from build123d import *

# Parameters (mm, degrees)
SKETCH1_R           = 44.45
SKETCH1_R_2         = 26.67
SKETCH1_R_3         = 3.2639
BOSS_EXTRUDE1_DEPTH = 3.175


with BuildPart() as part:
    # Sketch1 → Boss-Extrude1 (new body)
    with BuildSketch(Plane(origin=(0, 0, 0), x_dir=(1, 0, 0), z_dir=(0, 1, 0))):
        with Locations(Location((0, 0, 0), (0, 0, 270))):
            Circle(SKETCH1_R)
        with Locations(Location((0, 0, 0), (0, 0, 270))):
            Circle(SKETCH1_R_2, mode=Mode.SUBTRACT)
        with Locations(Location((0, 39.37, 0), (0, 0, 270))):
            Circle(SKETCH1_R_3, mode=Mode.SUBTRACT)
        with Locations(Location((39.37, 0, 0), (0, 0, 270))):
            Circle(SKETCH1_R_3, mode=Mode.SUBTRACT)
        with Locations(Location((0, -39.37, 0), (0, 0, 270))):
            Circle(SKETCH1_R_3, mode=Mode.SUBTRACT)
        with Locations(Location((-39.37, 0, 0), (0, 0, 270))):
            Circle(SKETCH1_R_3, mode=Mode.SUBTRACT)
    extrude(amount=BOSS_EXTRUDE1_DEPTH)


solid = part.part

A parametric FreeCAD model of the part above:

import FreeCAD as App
import Part
import Sketcher

V = App.Vector
Q = App.Units.Quantity

doc = App.newDocument("Part")
body = doc.addObject("PartDesign::Body", "Body")

sketch1 = doc.addObject("Sketcher::SketchObject", "Sketch")
body.addObject(sketch1)
sketch1.AttachmentSupport = (doc.XZ_Plane, [""])
sketch1.MapMode = "FlatFace"
sketch1.addGeometry([
    Part.Circle(V(0, 0, 0), V(0, 0, 1), 44.5),
    Part.Circle(V(0, -39.4, 0), V(0, 0, 1), 3.3),
    Part.Circle(V(-39.4, 0, 0), V(0, 0, 1), 3.3),
    Part.Circle(V(39.4, 0, 0), V(0, 0, 1), 3.3),
    Part.Circle(V(0, 0, 0), V(0, 0, 1), 26.7),
    Part.Circle(V(0, 39.4, 0), V(0, 0, 1), 3.3),
], False)
sketch1.addConstraint([
    Sketcher.Constraint("Coincident", 0, 3, -1, 1),
    Sketcher.Constraint("Coincident", 4, 3, -1, 1),
    Sketcher.Constraint("Equal", 1, 2),
    Sketcher.Constraint("Equal", 2, 3),
    Sketcher.Constraint("Equal", 3, 5),
    Sketcher.Constraint("Symmetric", 2, 3, 3, 3, -1, 1),
    Sketcher.Constraint("Symmetric", 1, 3, 5, 3, -1, 1),
    Sketcher.Constraint("PointOnObject", 1, 3, -2),
    Sketcher.Constraint("PointOnObject", 2, 3, -1),
    Sketcher.Constraint("Diameter", 0, Q("3.5 in")),
    Sketcher.Constraint("Diameter", 4, Q("2.1 in")),
    Sketcher.Constraint("Diameter", 1, Q("0.257 in")),
    Sketcher.Constraint("DistanceX", 2, 3, 3, 3, Q("3.1 in")),
    Sketcher.Constraint("DistanceY", 1, 3, 5, 3, Q("3.1 in")),
])
pad1 = doc.addObject("PartDesign::Pad", "Pad")
body.addObject(pad1)
pad1.Profile = sketch1
pad1.Length = Q("0.125 in")
pad1.Reversed = True

doc.recompute()
